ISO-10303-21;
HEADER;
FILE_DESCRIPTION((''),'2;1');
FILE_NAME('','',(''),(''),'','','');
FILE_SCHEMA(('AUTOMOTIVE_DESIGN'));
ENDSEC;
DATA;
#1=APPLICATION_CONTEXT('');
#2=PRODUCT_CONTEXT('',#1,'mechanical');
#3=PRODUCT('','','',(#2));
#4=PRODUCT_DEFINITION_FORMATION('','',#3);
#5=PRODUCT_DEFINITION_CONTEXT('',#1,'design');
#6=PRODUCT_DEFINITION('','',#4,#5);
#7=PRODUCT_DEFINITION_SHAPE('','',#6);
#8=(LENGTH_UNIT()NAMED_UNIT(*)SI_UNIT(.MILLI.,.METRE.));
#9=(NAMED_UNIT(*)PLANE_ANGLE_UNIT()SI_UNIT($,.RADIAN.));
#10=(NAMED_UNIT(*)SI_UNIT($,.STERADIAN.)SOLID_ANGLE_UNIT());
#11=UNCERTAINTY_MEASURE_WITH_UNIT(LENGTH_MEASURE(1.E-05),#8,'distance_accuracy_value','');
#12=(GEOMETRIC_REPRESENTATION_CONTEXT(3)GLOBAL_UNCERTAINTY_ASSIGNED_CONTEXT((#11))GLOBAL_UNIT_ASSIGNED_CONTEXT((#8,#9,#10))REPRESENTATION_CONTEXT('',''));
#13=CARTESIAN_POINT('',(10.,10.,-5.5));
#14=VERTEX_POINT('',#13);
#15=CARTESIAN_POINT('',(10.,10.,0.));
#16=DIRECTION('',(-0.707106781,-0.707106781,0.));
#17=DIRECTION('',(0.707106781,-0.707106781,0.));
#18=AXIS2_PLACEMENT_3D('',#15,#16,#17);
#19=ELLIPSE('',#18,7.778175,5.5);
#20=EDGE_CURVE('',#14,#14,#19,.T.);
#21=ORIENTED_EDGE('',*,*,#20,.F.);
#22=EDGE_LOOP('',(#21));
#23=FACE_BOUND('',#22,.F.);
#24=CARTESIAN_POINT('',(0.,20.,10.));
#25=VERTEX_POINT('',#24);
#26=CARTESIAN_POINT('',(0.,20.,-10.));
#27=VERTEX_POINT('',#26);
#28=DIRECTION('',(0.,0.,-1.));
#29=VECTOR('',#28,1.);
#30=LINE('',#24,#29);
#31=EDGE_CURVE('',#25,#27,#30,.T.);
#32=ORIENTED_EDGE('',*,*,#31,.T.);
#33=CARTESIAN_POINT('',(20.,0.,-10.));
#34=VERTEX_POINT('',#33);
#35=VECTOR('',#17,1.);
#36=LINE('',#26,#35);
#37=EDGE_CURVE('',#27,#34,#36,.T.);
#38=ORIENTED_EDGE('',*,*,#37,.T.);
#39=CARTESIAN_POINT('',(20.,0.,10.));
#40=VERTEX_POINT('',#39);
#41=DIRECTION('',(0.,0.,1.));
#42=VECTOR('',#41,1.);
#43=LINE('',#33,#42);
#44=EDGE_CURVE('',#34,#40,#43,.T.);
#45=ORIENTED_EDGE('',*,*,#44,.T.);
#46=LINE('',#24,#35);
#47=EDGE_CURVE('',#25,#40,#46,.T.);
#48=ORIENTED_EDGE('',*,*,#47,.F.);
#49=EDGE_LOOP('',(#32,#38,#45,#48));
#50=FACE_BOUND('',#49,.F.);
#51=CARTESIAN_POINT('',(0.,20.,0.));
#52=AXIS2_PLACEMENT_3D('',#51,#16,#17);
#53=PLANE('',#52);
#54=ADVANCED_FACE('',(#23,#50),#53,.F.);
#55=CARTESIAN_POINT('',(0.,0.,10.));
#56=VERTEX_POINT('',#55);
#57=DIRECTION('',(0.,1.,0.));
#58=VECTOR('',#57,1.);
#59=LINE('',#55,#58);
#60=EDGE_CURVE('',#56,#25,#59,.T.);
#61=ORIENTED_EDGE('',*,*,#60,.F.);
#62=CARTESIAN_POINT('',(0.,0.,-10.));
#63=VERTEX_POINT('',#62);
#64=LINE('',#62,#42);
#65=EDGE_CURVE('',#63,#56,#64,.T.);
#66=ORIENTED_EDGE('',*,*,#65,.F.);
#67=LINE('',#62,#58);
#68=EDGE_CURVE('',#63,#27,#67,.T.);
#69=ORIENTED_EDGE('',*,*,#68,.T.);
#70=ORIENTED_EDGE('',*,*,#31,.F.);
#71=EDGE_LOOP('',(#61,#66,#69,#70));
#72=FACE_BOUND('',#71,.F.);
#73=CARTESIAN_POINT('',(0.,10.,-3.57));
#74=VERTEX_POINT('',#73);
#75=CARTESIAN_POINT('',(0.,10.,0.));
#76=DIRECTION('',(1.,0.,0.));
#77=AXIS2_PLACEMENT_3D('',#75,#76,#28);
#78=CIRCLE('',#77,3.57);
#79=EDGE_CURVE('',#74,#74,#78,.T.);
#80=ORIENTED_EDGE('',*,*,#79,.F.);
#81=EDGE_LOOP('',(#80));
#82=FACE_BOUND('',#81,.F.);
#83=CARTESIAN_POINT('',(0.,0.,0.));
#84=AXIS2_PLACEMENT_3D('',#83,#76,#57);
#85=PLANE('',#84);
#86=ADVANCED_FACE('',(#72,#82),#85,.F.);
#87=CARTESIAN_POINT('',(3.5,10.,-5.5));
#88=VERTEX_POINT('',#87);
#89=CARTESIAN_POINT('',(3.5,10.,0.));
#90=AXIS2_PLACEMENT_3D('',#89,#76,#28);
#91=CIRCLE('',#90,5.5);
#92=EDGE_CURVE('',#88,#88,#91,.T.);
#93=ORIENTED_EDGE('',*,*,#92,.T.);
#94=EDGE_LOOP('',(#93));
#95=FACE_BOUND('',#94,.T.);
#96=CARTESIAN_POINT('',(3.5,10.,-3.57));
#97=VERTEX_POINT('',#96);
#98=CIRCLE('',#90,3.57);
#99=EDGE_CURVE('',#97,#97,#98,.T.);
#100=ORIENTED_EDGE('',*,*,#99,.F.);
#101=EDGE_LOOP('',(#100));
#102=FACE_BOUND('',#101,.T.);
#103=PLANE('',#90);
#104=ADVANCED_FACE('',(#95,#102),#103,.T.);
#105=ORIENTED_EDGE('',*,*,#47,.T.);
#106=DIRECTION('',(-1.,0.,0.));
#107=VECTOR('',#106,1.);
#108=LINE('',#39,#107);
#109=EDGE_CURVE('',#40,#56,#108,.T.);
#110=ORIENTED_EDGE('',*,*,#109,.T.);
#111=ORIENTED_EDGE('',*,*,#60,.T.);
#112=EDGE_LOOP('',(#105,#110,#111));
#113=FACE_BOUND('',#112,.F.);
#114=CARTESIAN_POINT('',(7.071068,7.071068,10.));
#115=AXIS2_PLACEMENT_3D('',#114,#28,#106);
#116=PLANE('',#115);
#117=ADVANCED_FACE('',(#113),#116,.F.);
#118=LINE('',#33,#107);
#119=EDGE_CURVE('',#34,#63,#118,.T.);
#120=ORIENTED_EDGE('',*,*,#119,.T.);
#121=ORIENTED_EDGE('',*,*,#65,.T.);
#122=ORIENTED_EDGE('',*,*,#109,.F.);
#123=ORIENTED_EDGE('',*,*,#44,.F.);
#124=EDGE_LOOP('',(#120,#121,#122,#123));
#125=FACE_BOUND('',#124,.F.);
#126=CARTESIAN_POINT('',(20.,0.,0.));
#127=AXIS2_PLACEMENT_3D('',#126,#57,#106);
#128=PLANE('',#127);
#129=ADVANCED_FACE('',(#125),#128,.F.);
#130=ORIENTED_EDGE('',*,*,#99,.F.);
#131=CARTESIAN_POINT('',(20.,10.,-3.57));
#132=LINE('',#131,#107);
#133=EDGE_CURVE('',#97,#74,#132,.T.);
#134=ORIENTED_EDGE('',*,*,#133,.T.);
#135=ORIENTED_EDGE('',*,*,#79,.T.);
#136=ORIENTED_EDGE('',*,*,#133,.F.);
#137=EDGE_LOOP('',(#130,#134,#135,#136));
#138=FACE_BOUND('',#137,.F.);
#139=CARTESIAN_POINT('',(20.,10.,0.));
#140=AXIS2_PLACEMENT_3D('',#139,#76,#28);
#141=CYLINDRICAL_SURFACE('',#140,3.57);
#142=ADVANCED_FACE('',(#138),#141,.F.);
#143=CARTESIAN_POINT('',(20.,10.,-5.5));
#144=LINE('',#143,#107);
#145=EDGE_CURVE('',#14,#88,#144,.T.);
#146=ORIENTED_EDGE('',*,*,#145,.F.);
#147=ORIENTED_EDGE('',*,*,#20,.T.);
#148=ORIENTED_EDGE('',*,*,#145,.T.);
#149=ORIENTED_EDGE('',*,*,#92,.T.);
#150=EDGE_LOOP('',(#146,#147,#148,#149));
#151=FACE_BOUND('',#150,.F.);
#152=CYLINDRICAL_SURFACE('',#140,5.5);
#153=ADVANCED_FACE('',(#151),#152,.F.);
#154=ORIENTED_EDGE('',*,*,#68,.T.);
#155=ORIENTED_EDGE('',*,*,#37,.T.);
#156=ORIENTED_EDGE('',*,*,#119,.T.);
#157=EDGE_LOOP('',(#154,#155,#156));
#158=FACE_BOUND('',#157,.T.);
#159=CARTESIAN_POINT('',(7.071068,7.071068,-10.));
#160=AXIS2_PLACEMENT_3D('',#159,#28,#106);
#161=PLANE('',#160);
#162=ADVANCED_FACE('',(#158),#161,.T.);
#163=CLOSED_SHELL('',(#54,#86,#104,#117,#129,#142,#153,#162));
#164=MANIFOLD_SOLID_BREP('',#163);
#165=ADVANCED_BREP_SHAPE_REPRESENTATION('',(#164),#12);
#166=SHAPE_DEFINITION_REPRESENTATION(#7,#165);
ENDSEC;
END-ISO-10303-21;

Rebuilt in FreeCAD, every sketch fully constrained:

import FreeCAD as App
import Part
import Sketcher
Q = App.Units.Quantity


def add_polygon(sketch, points):
    """Adds a closed chain of lines whose ends are joined by coincident constraints."""
    first, n = sketch.GeometryCount, len(points)
    for a, b in zip(points, points[1:] + points[:1]):
        sketch.addGeometry(Part.LineSegment(App.Vector(*a, 0), App.Vector(*b, 0)), False)
    for i in range(n):
        sketch.addConstraint(Sketcher.Constraint("Coincident", first + i, 2, first + (i + 1) % n, 1))

doc = App.newDocument("Part")
body = doc.addObject("PartDesign::Body", "Body")

# Sketch on XY plane
sketch1 = body.newObject("Sketcher::SketchObject", "Sketch")
sketch1.AttachmentSupport = (doc.getObject("XY_Plane"), [""])
sketch1.MapMode = "FlatFace"
add_polygon(sketch1, [(0, 20), (0, 0), (20, 0)])  # lines 0-2
sketch1.addConstraint(Sketcher.Constraint("Vertical", 0))
sketch1.addConstraint(Sketcher.Constraint("Horizontal", 1))
sketch1.addConstraint(Sketcher.Constraint("Coincident", 0, 2, -1, 1))
sketch1.addConstraint(Sketcher.Constraint("Equal", 1, 0))
sketch1.addConstraint(Sketcher.Constraint("DistanceX", 1, 1, 1, 2, Q("20 mm")))
pad1 = body.newObject("PartDesign::Pad", "Pad")
pad1.Profile = sketch1
pad1.Length = 20
pad1.Midplane = True

# Sketch on YZ plane
sketch2 = body.newObject("Sketcher::SketchObject", "Sketch001")
sketch2.AttachmentSupport = (doc.getObject("YZ_Plane"), [""])
sketch2.MapMode = "FlatFace"
sketch2.AttachmentOffset = App.Placement(App.Vector(0, 0, 20), App.Rotation())
sketch2.addGeometry(Part.Circle(App.Vector(10, 0, 0), App.Vector(0, 0, 1), 3.6), False)
sketch2.addConstraint(Sketcher.Constraint("PointOnObject", 0, 3, -1))
sketch2.addConstraint(Sketcher.Constraint("Diameter", 0, Q("7.14 mm")))
sketch2.addConstraint(Sketcher.Constraint("DistanceX", -1, 1, 0, 3, Q("10 mm")))
pocket1 = body.newObject("PartDesign::Pocket", "Pocket")
pocket1.Profile = sketch2
pocket1.Type = "ThroughAll"

# Sketch on YZ plane
sketch3 = body.newObject("Sketcher::SketchObject", "Sketch002")
sketch3.AttachmentSupport = (doc.getObject("YZ_Plane"), [""])
sketch3.MapMode = "FlatFace"
sketch3.AttachmentOffset = App.Placement(App.Vector(0, 0, 20), App.Rotation())
sketch3.addGeometry(Part.Circle(App.Vector(10, 0, 0), App.Vector(0, 0, 1), 6), False)
sketch3.addConstraint(Sketcher.Constraint("PointOnObject", 0, 3, -1))
sketch3.addConstraint(Sketcher.Constraint("Diameter", 0, Q("11 mm")))
sketch3.addConstraint(Sketcher.Constraint("DistanceX", -1, 1, 0, 3, Q("10 mm")))
pocket2 = body.newObject("PartDesign::Pocket", "Pocket001")
pocket2.Profile = sketch3
pocket2.Length = 16.5

doc.recompute()
